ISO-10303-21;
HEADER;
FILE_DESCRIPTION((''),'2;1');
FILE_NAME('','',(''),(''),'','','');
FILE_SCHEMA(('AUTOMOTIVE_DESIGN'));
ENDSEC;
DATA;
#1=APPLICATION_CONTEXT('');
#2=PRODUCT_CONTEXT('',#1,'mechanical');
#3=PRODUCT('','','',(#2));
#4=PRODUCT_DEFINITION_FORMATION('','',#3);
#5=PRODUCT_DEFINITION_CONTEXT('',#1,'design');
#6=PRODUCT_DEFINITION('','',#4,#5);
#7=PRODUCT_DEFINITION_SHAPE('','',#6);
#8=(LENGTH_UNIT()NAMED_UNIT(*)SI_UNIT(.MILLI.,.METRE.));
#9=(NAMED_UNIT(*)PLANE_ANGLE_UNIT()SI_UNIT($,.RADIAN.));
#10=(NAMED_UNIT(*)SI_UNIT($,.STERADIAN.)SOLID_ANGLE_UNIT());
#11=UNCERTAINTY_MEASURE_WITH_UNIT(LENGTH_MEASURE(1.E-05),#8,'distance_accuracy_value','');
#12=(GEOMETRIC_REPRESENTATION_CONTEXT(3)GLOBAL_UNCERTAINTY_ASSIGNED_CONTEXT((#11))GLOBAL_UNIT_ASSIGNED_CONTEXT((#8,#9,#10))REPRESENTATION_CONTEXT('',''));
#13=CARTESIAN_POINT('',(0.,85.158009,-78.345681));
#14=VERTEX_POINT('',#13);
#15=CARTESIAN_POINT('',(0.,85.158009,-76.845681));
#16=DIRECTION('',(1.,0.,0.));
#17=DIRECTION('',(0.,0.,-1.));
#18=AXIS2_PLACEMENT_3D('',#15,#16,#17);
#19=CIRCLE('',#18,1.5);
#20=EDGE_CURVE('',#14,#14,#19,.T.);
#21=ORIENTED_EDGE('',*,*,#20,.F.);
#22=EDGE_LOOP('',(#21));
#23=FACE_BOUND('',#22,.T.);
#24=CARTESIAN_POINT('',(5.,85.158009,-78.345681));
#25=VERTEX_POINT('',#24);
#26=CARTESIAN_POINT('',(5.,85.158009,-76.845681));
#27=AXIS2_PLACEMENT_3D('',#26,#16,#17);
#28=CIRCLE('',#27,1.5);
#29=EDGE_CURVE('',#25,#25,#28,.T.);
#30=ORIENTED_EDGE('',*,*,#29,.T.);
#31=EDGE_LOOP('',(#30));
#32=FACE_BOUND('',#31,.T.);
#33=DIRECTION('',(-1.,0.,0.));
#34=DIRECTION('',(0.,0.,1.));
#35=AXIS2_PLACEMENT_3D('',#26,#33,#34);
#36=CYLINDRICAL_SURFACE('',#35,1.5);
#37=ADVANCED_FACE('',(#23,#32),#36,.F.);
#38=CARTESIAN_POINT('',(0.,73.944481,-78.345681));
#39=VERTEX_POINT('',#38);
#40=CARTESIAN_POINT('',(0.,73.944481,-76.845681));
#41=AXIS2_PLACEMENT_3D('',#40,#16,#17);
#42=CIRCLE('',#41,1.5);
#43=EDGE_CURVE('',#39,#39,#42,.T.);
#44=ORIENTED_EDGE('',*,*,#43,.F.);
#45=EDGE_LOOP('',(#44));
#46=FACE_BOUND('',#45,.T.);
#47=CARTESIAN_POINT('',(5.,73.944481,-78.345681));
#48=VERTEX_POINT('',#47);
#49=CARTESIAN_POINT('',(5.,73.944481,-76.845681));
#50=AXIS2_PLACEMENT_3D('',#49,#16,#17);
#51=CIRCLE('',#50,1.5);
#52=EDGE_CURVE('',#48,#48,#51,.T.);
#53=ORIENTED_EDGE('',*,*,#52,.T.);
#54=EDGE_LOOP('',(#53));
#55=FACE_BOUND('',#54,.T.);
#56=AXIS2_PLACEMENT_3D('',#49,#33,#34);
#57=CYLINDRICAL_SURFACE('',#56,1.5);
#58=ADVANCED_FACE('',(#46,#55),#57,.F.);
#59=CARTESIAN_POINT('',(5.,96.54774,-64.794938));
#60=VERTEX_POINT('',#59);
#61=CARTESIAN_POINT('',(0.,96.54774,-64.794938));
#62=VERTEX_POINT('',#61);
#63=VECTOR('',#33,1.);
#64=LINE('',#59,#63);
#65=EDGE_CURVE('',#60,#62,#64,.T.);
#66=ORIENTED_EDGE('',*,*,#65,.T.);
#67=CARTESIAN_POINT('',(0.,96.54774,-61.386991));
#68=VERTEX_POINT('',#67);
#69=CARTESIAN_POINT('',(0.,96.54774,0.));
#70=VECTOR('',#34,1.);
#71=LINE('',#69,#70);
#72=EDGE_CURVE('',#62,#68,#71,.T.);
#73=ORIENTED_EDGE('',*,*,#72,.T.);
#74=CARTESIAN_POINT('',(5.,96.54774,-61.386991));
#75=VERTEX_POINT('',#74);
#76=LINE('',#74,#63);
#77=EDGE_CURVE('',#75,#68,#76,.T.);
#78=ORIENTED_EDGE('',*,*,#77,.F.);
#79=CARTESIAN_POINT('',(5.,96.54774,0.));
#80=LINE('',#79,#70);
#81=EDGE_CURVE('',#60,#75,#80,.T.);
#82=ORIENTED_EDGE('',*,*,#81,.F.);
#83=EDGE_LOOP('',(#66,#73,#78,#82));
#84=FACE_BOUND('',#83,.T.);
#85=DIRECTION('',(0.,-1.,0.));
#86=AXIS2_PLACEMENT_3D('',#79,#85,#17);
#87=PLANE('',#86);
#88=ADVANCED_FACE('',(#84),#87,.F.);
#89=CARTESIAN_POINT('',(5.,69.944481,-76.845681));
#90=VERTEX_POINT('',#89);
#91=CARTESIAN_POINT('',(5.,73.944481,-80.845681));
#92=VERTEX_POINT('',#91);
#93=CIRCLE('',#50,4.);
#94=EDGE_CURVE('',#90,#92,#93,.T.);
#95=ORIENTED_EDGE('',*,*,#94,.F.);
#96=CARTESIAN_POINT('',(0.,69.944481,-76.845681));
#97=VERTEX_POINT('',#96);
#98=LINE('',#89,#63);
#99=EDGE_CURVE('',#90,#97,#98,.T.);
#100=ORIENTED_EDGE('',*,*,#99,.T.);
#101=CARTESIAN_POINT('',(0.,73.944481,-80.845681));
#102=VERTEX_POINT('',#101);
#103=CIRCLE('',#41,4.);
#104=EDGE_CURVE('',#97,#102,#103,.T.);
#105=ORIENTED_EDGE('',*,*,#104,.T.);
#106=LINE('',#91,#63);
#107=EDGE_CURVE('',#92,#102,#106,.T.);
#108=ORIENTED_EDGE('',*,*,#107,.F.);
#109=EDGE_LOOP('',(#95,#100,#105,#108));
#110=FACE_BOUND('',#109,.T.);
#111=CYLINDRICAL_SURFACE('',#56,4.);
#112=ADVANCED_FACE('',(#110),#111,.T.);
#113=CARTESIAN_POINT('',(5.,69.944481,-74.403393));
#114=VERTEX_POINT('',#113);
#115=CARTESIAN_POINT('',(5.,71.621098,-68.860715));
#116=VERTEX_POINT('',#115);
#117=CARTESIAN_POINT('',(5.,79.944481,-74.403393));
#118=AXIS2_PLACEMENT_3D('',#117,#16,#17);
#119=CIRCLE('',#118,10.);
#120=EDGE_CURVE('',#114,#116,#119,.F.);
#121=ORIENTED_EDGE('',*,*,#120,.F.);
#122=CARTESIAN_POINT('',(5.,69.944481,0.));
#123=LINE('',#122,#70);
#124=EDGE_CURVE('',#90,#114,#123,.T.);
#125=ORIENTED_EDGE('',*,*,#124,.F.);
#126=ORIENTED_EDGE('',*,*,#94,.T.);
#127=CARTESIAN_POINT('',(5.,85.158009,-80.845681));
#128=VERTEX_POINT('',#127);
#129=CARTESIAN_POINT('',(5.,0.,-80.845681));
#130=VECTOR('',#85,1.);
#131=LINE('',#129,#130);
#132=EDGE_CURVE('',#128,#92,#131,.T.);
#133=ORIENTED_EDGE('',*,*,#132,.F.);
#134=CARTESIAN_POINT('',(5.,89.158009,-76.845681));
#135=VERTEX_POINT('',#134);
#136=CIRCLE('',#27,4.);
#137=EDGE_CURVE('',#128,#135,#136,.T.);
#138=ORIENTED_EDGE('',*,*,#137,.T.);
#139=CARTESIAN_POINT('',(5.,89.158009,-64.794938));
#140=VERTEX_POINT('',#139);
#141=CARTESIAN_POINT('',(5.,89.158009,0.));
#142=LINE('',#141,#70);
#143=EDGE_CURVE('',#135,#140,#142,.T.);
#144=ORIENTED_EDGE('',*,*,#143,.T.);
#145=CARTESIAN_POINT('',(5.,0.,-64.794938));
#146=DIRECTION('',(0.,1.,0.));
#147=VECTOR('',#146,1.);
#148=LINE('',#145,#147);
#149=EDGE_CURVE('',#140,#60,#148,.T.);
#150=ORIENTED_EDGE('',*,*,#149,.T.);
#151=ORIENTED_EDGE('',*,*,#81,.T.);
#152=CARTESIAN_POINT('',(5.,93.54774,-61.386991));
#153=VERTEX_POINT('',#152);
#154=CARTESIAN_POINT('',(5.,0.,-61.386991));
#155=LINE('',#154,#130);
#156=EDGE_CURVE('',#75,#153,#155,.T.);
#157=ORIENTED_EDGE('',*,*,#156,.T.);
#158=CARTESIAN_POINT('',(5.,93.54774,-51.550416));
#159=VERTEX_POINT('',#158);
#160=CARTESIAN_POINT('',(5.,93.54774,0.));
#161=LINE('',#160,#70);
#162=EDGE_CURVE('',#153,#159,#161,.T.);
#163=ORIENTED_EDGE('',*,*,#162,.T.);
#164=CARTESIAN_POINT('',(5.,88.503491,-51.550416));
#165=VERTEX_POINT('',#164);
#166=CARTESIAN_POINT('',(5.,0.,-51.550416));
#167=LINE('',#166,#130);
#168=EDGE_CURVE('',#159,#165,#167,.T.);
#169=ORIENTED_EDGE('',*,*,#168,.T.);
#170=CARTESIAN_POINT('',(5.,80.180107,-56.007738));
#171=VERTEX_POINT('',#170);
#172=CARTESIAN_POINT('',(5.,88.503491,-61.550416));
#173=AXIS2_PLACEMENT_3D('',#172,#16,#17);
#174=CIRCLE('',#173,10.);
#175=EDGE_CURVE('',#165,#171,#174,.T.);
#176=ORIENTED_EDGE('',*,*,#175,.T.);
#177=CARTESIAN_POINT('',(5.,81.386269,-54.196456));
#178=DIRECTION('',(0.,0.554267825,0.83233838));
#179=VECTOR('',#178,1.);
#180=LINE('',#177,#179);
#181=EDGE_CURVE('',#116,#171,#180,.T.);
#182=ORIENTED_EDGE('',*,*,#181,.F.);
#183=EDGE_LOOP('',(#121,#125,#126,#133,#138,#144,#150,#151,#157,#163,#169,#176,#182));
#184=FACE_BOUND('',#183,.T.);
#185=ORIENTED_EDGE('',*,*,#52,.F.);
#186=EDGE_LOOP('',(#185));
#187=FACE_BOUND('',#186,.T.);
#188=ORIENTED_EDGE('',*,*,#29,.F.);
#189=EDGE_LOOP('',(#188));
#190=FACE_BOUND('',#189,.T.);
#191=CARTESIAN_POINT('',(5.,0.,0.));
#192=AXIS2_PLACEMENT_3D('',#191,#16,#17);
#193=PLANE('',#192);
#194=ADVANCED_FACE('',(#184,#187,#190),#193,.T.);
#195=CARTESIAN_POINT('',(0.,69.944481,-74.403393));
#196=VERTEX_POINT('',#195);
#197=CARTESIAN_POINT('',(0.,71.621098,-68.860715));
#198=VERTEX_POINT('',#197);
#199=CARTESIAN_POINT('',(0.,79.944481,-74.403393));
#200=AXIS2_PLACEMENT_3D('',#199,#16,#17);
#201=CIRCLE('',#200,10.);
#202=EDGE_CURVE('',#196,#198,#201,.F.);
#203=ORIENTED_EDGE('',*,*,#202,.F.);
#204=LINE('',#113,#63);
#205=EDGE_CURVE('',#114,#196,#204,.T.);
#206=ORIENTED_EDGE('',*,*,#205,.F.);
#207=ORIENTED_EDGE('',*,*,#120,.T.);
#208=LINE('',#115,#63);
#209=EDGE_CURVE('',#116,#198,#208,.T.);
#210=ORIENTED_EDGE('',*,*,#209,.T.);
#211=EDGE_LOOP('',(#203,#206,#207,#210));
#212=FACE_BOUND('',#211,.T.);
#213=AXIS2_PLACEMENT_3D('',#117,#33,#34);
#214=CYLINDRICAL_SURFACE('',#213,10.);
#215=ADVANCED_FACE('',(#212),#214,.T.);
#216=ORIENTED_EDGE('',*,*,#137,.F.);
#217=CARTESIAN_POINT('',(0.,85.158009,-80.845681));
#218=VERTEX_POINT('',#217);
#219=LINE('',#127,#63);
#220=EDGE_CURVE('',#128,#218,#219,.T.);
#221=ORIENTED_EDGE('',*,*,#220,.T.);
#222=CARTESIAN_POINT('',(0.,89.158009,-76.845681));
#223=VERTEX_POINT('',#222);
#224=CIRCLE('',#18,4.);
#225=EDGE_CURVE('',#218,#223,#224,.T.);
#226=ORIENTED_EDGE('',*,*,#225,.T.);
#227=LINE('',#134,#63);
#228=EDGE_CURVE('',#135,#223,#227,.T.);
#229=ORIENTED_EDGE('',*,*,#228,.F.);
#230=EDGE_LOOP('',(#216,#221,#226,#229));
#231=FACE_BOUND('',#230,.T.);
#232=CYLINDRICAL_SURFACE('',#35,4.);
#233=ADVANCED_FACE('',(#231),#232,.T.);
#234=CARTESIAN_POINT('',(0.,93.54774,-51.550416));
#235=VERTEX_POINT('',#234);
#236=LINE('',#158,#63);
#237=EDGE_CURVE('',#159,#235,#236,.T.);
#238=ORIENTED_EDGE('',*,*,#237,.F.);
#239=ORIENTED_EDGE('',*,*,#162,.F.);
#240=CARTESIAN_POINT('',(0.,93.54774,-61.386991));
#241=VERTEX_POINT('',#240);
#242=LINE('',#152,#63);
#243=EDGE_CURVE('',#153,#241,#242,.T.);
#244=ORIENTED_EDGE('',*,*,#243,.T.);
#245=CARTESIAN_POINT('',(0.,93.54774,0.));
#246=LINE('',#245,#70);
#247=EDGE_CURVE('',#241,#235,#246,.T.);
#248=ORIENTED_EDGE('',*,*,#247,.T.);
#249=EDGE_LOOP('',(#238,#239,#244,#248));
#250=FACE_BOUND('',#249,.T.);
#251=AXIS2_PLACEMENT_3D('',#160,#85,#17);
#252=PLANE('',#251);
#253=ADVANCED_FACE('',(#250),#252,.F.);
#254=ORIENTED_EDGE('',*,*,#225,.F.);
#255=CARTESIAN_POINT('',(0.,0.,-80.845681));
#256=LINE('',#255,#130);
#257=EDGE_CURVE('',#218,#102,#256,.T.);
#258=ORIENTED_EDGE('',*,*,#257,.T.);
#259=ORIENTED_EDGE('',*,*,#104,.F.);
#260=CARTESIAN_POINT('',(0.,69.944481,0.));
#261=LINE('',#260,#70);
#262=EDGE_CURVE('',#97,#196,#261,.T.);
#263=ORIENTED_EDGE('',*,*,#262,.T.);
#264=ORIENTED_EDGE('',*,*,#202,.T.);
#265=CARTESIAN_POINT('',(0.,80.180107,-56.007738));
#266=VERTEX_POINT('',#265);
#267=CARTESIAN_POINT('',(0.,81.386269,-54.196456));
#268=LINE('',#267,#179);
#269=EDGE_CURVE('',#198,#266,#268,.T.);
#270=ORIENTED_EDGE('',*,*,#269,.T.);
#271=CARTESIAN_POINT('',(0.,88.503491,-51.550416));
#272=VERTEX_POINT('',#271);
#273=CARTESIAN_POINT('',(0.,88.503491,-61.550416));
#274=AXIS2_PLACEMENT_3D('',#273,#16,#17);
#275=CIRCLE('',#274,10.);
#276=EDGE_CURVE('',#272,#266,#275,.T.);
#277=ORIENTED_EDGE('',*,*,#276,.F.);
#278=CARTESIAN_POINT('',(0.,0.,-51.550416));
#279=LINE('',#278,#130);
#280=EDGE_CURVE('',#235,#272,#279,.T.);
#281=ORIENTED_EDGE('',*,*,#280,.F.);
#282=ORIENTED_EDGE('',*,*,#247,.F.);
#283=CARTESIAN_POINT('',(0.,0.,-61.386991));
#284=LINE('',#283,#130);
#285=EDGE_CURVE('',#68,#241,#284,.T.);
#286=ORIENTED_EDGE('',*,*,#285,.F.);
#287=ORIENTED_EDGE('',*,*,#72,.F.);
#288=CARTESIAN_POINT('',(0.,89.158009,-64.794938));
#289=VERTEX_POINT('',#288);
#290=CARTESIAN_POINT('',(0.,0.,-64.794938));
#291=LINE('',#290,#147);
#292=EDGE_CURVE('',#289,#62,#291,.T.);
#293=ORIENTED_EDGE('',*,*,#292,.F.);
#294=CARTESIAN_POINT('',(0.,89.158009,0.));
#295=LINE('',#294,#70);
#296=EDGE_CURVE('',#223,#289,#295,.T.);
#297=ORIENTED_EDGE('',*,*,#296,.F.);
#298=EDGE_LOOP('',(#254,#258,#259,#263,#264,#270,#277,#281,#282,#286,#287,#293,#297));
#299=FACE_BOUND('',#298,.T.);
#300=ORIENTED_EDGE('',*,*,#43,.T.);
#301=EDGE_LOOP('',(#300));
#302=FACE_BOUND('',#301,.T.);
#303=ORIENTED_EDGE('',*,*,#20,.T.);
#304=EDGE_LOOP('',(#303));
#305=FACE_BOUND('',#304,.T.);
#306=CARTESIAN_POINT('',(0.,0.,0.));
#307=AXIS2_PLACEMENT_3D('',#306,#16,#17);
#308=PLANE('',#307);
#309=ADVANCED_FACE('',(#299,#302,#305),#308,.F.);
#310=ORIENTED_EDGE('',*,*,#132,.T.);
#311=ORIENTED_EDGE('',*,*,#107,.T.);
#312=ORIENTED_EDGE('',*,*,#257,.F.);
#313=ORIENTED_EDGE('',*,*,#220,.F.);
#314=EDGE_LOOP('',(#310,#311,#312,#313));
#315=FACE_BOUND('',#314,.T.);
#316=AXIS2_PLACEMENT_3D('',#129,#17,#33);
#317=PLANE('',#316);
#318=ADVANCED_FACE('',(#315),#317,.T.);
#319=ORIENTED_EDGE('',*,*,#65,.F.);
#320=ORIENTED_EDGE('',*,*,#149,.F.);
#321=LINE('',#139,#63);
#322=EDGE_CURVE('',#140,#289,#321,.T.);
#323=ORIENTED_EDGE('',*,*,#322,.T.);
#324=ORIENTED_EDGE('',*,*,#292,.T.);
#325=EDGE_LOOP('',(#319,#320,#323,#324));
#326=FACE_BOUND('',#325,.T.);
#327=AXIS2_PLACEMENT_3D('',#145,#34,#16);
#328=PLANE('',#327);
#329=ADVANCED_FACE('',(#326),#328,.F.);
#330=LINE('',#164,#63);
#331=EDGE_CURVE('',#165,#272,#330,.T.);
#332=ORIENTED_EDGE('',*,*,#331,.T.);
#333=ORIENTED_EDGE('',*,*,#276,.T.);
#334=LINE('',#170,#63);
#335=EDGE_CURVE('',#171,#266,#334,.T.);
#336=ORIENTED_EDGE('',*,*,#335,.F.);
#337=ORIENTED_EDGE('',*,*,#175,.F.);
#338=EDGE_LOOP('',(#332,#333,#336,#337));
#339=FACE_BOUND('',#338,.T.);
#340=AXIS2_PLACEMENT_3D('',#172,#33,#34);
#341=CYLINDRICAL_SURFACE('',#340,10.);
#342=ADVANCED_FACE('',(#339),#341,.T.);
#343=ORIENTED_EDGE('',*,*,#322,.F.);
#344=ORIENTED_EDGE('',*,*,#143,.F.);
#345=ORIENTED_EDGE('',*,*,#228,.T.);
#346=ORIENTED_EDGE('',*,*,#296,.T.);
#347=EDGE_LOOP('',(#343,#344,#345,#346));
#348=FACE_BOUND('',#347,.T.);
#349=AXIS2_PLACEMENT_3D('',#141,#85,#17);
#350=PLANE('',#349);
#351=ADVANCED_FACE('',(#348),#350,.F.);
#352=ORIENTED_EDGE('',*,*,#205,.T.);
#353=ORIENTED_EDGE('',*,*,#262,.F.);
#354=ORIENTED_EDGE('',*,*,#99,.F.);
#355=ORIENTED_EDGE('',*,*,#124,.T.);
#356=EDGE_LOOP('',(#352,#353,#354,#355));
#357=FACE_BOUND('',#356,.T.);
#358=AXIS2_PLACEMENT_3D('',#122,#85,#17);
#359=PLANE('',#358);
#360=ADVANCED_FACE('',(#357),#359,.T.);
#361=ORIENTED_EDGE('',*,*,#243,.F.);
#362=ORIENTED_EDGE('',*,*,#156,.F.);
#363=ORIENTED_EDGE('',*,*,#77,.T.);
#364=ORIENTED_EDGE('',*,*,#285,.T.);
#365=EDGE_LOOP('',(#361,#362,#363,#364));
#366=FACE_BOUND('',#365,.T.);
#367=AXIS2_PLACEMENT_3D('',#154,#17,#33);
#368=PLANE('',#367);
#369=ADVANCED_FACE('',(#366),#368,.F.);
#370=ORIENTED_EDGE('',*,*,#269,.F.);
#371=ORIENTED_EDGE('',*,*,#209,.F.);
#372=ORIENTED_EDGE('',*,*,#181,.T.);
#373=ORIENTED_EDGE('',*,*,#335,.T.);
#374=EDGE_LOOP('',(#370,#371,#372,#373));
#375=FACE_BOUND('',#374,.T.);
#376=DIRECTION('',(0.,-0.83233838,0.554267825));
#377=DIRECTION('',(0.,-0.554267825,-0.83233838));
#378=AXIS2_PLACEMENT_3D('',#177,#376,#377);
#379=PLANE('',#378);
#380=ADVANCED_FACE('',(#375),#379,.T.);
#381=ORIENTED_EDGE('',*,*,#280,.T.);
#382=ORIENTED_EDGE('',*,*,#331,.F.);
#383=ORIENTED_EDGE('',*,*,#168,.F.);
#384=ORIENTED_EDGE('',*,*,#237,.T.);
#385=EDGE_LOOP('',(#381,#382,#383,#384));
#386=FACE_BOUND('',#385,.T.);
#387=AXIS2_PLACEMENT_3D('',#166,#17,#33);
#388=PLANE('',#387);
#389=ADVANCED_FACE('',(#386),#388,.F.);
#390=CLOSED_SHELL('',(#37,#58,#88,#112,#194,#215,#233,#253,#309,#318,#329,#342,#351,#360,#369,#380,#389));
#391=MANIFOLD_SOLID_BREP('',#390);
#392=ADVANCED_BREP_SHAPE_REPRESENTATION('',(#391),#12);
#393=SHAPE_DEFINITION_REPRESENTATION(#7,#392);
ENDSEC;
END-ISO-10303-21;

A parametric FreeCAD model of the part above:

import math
import FreeCAD as App
import Part
import Sketcher

doc = App.newDocument("Part")
body = doc.addObject("PartDesign::Body", "Body")

# Sketch on YZ plane
sketch1 = body.newObject("Sketcher::SketchObject", "Sketch")
sketch1.AttachmentSupport = (doc.getObject("YZ_Plane"), [""])
sketch1.MapMode = "FlatFace"
sketch1.addGeometry(Part.ArcOfCircle(Part.Circle(App.Vector(73.9, -76.8, 0), App.Vector(0, 0, 1), 4), math.radians(180), math.radians(270)), False)
sketch1.addGeometry(Part.LineSegment(App.Vector(73.9, -80.8, 0), App.Vector(85.2, -80.8, 0)), False)
sketch1.addGeometry(Part.ArcOfCircle(Part.Circle(App.Vector(85.2, -76.8, 0), App.Vector(0, 0, 1), 4), math.radians(-90), math.radians(0)), False)
sketch1.addGeometry(Part.LineSegment(App.Vector(89.2, -76.8, 0), App.Vector(89.2, -64.8, 0)), False)
sketch1.addGeometry(Part.LineSegment(App.Vector(89.2, -64.8, 0), App.Vector(96.5, -64.8, 0)), False)
sketch1.addGeometry(Part.LineSegment(App.Vector(96.5, -64.8, 0), App.Vector(96.5, -61.4, 0)), False)
sketch1.addGeometry(Part.LineSegment(App.Vector(96.5, -61.4, 0), App.Vector(93.5, -61.4, 0)), False)
sketch1.addGeometry(Part.LineSegment(App.Vector(93.5, -61.4, 0), App.Vector(93.5, -51.6, 0)), False)
sketch1.addGeometry(Part.LineSegment(App.Vector(93.5, -51.6, 0), App.Vector(88.5, -51.6, 0)), False)
sketch1.addGeometry(Part.ArcOfCircle(Part.Circle(App.Vector(88.5, -61.6, 0), App.Vector(0, 0, 1), 10), math.radians(90), math.radians(146)), False)
sketch1.addGeometry(Part.LineSegment(App.Vector(80.2, -56, 0), App.Vector(71.6, -68.9, 0)), False)
sketch1.addGeometry(Part.ArcOfCircle(Part.Circle(App.Vector(79.9, -74.4, 0), App.Vector(0, 0, 1), 10), math.radians(146), math.radians(180)), False)
sketch1.addGeometry(Part.LineSegment(App.Vector(69.9, -74.4, 0), App.Vector(69.9, -76.8, 0)), False)
sketch1.addGeometry(Part.Circle(App.Vector(73.9, -76.8, 0), App.Vector(0, 0, 1), 1.5), False)
sketch1.addGeometry(Part.Circle(App.Vector(85.2, -76.8, 0), App.Vector(0, 0, 1), 1.5), False)
sketch1.addConstraint(Sketcher.Constraint("Tangent", 0, 2, 1, 1))
sketch1.addConstraint(Sketcher.Constraint("Tangent", 1, 2, 2, 1))
sketch1.addConstraint(Sketcher.Constraint("Tangent", 2, 2, 3, 1))
sketch1.addConstraint(Sketcher.Constraint("Coincident", 3, 2, 4, 1))
sketch1.addConstraint(Sketcher.Constraint("Coincident", 4, 2, 5, 1))
sketch1.addConstraint(Sketcher.Constraint("Coincident", 5, 2, 6, 1))
sketch1.addConstraint(Sketcher.Constraint("Coincident", 6, 2, 7, 1))
sketch1.addConstraint(Sketcher.Constraint("Coincident", 7, 2, 8, 1))
sketch1.addConstraint(Sketcher.Constraint("Tangent", 8, 2, 9, 1))
sketch1.addConstraint(Sketcher.Constraint("Tangent", 9, 2, 10, 1))
sketch1.addConstraint(Sketcher.Constraint("Tangent", 10, 2, 11, 1))
sketch1.addConstraint(Sketcher.Constraint("Tangent", 11, 2, 12, 1))
sketch1.addConstraint(Sketcher.Constraint("Tangent", 12, 2, 0, 1))
sketch1.addConstraint(Sketcher.Constraint("Horizontal", 1))
sketch1.addConstraint(Sketcher.Constraint("Vertical", 3))
sketch1.addConstraint(Sketcher.Constraint("Horizontal", 4))
sketch1.addConstraint(Sketcher.Constraint("Vertical", 5))
sketch1.addConstraint(Sketcher.Constraint("Horizontal", 6))
sketch1.addConstraint(Sketcher.Constraint("Vertical", 7))
sketch1.addConstraint(Sketcher.Constraint("Horizontal", 8))
sketch1.addConstraint(Sketcher.Constraint("Vertical", 12))
sketch1.addConstraint(Sketcher.Constraint("Coincident", 13, 3, 0, 3))
sketch1.addConstraint(Sketcher.Constraint("Coincident", 14, 3, 2, 3))
sketch1.addConstraint(Sketcher.Constraint("Equal", 0, 2))
sketch1.addConstraint(Sketcher.Constraint("Equal", 9, 11))
sketch1.addConstraint(Sketcher.Constraint("Equal", 13, 14))
sketch1.addConstraint(Sketcher.Constraint("Diameter", 13, 3.0))
sketch1.addConstraint(Sketcher.Constraint("Radius", 0, 4.0))
sketch1.addConstraint(Sketcher.Constraint("Radius", 9, 10.0))
sketch1.addConstraint(Sketcher.Constraint("DistanceX", 6, 2, 6, 1, 3.0))
sketch1.addConstraint(Sketcher.Constraint("DistanceX", 4, 1, 4, 2, 7.389731))
sketch1.addConstraint(Sketcher.Constraint("DistanceX", 8, 2, 8, 1, 5.044249))
sketch1.addConstraint(Sketcher.Constraint("DistanceY", 3, 2, 9, 2, 8.787201))
sketch1.addConstraint(Sketcher.Constraint("Distance", 10, 15.44201))
sketch1.addConstraint(Sketcher.Constraint("DistanceX", 1, 1, 1, 2, 11.213528))
sketch1.addConstraint(Sketcher.Constraint("DistanceY", 3, 1, 3, 2, 12.050742))
sketch1.addConstraint(Sketcher.Constraint("DistanceY", 5, 1, 5, 2, 3.407947))
sketch1.addConstraint(Sketcher.Constraint("DistanceX", -1, 1, 0, 3, 73.944481))
sketch1.addConstraint(Sketcher.Constraint("DistanceY", 0, 3, -1, 1, 76.845681))
pad1 = body.newObject("PartDesign::Pad", "Pad")
pad1.Profile = sketch1
pad1.Length = 5

doc.recompute()
